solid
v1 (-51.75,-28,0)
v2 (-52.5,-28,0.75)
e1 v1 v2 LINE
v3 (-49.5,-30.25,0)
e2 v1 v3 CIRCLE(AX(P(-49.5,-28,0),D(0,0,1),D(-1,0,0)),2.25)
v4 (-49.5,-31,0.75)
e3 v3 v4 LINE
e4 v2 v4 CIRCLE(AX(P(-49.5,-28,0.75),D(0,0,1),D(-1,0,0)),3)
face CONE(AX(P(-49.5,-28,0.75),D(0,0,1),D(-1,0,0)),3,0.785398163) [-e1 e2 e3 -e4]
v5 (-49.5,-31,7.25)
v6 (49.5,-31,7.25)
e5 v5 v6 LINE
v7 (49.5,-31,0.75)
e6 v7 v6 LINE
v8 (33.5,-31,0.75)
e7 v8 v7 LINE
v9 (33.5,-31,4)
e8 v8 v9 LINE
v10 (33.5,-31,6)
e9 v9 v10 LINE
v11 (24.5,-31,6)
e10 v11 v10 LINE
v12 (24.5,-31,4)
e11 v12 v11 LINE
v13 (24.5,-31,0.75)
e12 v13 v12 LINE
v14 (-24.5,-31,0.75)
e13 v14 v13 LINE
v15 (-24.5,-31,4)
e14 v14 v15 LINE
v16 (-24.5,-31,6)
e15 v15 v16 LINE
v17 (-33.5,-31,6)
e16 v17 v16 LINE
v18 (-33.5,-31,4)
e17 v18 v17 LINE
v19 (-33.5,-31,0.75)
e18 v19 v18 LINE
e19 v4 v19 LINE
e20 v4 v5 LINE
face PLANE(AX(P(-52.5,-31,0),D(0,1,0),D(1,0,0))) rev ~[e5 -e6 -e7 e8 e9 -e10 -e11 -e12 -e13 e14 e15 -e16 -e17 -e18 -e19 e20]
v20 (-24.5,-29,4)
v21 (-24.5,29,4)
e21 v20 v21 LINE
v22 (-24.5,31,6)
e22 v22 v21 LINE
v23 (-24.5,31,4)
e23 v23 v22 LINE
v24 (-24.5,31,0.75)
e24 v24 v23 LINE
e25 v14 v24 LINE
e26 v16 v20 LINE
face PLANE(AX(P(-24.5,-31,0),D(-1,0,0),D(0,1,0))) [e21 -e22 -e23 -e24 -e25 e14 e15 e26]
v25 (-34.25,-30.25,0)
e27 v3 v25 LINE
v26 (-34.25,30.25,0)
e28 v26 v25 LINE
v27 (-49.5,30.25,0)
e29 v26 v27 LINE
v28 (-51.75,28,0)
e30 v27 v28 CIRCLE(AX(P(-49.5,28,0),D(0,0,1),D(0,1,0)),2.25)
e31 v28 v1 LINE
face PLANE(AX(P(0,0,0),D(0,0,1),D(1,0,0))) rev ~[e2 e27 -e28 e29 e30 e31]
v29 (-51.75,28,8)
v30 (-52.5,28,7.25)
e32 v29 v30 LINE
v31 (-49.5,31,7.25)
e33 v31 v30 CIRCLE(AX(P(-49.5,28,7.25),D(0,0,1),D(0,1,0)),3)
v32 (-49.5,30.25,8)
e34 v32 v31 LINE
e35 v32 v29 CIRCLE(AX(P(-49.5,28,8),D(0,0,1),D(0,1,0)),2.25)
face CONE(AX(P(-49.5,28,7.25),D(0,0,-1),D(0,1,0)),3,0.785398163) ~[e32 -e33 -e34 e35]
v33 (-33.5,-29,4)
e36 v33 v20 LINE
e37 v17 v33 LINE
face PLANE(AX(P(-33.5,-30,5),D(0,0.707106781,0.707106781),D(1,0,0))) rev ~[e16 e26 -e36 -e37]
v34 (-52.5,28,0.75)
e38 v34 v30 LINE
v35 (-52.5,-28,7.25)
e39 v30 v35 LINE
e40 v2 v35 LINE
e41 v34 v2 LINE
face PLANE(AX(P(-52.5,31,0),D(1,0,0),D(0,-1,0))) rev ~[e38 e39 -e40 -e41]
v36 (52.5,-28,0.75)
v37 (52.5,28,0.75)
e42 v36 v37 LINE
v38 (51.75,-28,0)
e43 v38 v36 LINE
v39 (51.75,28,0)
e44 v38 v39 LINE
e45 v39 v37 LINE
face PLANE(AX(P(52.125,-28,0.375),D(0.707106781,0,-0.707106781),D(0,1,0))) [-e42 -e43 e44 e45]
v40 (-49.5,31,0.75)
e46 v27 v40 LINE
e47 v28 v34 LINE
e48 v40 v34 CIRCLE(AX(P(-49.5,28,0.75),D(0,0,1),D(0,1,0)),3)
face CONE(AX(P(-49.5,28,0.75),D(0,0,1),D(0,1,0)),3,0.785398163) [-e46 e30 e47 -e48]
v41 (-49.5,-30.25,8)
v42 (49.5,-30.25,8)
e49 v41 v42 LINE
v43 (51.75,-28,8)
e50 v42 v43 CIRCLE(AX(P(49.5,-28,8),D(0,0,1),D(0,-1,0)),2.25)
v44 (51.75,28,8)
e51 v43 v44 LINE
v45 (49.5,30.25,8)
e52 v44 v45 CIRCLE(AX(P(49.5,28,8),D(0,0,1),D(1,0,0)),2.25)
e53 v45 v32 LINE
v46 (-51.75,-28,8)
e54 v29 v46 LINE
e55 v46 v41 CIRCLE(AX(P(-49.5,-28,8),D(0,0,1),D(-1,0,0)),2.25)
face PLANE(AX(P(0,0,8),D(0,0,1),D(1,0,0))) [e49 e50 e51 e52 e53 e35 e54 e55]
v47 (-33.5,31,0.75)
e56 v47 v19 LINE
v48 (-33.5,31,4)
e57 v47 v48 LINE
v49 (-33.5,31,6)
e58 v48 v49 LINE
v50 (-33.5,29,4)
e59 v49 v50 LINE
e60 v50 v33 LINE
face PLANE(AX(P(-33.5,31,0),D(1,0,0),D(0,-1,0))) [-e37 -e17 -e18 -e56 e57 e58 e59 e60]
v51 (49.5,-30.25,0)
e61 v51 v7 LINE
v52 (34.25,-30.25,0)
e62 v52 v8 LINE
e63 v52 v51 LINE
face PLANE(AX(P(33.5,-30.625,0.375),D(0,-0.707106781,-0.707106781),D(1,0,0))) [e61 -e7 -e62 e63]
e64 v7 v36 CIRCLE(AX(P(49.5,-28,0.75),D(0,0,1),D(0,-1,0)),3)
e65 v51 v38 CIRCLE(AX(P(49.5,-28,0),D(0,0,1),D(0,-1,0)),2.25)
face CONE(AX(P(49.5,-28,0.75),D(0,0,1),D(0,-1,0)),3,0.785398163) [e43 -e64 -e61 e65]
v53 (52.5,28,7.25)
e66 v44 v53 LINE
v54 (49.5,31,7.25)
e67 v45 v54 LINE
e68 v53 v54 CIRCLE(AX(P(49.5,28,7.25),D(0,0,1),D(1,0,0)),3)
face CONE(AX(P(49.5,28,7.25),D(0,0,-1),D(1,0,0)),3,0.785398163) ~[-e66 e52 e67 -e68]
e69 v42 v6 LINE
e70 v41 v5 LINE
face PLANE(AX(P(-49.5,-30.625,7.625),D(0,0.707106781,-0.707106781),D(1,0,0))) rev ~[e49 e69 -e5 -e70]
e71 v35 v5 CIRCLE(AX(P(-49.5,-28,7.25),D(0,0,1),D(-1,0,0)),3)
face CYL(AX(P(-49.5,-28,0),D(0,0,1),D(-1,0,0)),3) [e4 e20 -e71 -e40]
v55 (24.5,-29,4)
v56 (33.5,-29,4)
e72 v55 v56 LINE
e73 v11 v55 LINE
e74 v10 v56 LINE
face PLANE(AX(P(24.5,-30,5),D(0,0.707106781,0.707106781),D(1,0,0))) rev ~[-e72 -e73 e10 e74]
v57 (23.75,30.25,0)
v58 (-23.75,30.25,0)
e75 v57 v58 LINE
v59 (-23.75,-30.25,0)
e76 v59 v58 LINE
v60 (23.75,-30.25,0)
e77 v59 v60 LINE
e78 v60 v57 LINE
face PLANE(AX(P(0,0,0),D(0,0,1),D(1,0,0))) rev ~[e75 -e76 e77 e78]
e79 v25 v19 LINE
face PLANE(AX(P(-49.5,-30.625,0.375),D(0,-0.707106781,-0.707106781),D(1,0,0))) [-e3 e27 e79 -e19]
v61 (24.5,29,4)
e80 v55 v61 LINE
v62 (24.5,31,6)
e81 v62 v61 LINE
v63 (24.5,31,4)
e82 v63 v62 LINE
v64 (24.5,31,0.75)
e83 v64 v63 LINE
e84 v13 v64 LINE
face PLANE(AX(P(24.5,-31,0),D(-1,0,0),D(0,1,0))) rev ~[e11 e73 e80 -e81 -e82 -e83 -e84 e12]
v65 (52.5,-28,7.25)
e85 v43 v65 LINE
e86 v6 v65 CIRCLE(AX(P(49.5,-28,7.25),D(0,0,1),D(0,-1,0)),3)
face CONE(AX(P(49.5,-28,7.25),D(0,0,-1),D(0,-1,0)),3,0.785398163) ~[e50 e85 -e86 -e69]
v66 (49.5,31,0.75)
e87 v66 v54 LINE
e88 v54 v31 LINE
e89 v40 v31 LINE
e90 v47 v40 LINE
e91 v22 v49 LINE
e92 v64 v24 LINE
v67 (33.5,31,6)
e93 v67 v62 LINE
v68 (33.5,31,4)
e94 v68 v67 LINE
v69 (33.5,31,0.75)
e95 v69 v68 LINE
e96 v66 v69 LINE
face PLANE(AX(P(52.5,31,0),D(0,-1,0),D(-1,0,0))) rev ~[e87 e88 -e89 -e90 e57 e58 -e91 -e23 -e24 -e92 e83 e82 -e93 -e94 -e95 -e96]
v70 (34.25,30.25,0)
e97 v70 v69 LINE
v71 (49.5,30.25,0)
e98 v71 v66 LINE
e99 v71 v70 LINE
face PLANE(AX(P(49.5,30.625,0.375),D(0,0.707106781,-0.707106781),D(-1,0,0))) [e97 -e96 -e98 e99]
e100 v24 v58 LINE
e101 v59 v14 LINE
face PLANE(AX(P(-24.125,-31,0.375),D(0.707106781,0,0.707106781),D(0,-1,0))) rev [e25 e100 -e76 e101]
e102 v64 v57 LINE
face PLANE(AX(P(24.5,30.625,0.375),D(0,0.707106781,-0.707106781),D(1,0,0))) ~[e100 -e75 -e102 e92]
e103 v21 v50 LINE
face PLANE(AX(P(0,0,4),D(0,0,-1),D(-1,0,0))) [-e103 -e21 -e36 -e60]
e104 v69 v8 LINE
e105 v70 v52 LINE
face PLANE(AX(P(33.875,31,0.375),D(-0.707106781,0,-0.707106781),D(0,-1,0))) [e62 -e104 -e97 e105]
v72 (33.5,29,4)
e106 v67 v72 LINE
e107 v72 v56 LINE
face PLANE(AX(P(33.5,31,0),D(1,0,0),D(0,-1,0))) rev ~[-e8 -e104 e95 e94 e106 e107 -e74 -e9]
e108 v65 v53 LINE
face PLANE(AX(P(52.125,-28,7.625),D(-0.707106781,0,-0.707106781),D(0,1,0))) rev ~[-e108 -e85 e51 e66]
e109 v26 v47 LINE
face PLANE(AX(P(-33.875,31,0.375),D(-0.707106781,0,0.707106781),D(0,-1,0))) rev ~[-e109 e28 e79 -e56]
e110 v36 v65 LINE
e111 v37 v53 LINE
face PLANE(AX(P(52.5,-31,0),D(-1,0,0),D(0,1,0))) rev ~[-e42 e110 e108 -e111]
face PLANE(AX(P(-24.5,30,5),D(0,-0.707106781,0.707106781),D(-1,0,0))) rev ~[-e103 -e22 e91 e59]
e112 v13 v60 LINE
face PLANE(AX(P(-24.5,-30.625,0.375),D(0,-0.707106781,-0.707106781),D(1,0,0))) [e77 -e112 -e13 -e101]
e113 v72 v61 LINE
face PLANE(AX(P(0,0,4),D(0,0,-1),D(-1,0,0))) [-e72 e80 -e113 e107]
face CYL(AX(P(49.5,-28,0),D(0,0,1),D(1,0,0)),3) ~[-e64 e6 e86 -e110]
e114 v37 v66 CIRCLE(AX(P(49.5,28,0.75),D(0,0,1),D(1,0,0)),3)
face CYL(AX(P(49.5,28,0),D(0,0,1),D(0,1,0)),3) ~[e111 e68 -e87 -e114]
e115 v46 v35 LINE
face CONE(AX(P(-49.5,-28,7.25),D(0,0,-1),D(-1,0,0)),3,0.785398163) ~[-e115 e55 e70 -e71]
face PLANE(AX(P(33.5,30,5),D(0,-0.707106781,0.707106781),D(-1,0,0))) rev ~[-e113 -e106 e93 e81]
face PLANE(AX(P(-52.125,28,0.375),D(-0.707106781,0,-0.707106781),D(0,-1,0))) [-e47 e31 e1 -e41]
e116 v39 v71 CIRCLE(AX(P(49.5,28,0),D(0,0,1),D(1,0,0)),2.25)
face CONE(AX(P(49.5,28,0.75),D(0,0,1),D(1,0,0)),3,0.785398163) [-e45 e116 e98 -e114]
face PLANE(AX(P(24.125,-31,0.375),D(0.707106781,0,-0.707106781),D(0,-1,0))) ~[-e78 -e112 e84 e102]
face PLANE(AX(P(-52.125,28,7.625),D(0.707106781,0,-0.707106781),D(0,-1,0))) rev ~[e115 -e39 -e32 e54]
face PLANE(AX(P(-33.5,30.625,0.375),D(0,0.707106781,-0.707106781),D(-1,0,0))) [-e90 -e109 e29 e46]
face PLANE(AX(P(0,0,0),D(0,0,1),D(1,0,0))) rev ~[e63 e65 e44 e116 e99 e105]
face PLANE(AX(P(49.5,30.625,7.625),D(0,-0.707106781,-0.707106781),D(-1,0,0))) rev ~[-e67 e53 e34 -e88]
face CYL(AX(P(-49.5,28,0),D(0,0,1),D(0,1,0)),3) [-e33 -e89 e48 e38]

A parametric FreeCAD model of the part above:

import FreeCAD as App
import Part
import Sketcher
Q = App.Units.Quantity


def edges_at(feature, points):
    """Names of the edges that pass closest to the given points."""
    edges = feature.Shape.Edges
    near = lambda p: min(range(len(edges)), key=lambda i: edges[i].distToShape(Part.Vertex(*p))[0])
    return sorted({f"Edge{near(p) + 1}" for p in points})


def add_polygon(sketch, points):
    """Adds a closed chain of lines whose ends are joined by coincident constraints."""
    first, n = sketch.GeometryCount, len(points)
    for a, b in zip(points, points[1:] + points[:1]):
        sketch.addGeometry(Part.LineSegment(App.Vector(*a, 0), App.Vector(*b, 0)), False)
    for i in range(n):
        sketch.addConstraint(Sketcher.Constraint("Coincident", first + i, 2, first + (i + 1) % n, 1))

doc = App.newDocument("Part")
body = doc.addObject("PartDesign::Body", "Body")

# Sketch on XY plane
sketch1 = body.newObject("Sketcher::SketchObject", "Sketch")
sketch1.AttachmentSupport = (doc.getObject("XY_Plane"), [""])
sketch1.MapMode = "FlatFace"
add_polygon(sketch1, [(-52, 31), (-52, -31), (52, -31), (52, 31)])  # lines 0-3
sketch1.addConstraint([
    Sketcher.Constraint("Vertical", 0),
    Sketcher.Constraint("Horizontal", 1),
    Sketcher.Constraint("Vertical", 2),
    Sketcher.Constraint("Horizontal", 3),
    Sketcher.Constraint("Symmetric", 0, 2, 2, 2, -1, 1),
    Sketcher.Constraint("DistanceX", 1, 1, 1, 2, Q("105 mm")),
    Sketcher.Constraint("DistanceY", 0, 2, 0, 1, Q("62 mm")),
])
pad1 = body.newObject("PartDesign::Pad", "Pad")
pad1.Profile = sketch1
pad1.Length = 8

# Sketch on XY plane
sketch2 = body.newObject("Sketcher::SketchObject", "Sketch001")
sketch2.AttachmentSupport = (doc.getObject("XY_Plane"), [""])
sketch2.MapMode = "FlatFace"
add_polygon(sketch2, [(34, 31), (34, -31), (24, -31), (24, 31)])  # lines 0-3
add_polygon(sketch2, [(-24, 31), (-24, -31), (-34, -31), (-34, 31)])  # lines 4-7
sketch2.addConstraint([
    Sketcher.Constraint("Vertical", 0),
    Sketcher.Constraint("Horizontal", 1),
    Sketcher.Constraint("Vertical", 2),
    Sketcher.Constraint("Horizontal", 3),
    Sketcher.Constraint("Vertical", 4),
    Sketcher.Constraint("Horizontal", 5),
    Sketcher.Constraint("Vertical", 6),
    Sketcher.Constraint("Horizontal", 7),
    Sketcher.Constraint("Symmetric", 2, 2, 4, 2, -1, 1),
    Sketcher.Constraint("Symmetric", 0, 2, 6, 2, -1, 1),
    Sketcher.Constraint("Horizontal", 1, 2, 4, 2),
    Sketcher.Constraint("DistanceX", 1, 2, 1, 1, Q("9 mm")),
    Sketcher.Constraint("DistanceY", 0, 2, 0, 1, Q("62 mm")),
    Sketcher.Constraint("DistanceX", 4, 2, 1, 2, Q("49 mm")),
])
pocket1 = body.newObject("PartDesign::Pocket", "Pocket")
pocket1.Profile = sketch2
pocket1.Length = 4
pocket1.Reversed = True
doc.recompute()

chamfer = body.newObject("PartDesign::Chamfer", "Chamfer")
chamfer.Base = (pocket1, edges_at(pocket1, [
    (-29, -31, 4),
    (29, -31, 4),
    (29, 31, 4),
    (-29, 31, 4),
]))
chamfer.Size = 2
doc.recompute()

fillet = body.newObject("PartDesign::Fillet", "Fillet")
fillet.Base = (chamfer, edges_at(chamfer, [
    (-52.5, -31, 4),
    (-52.5, 31, 4),
    (52.5, -31, 4),
    (52.5, 31, 4),
]))
fillet.Radius = 3
doc.recompute()

chamfer2 = body.newObject("PartDesign::Chamfer", "Chamfer001")
chamfer2.Base = (fillet, edges_at(fillet, [
    (0, -31, 8),
    (-52.5, 0, 8),
    (0, 31, 8),
    (52.5, 0, 8),
]))
chamfer2.Size = 0.75
doc.recompute()

chamfer3 = body.newObject("PartDesign::Chamfer", "Chamfer002")
chamfer3.Base = (chamfer2, edges_at(chamfer2, [
    (-52.5, 0, 0),
    (-51.621, -30.121, 0),
    (-41.5, -31, 0),
    (-51.621, 30.121, 0),
    (-41.5, 31, 0),
    (52.5, 0, 0),
    (51.621, 30.121, 0),
    (41.5, 31, 0),
    (51.621, -30.121, 0),
    (41.5, -31, 0),
    (0, 31, 0),
    (24.5, 0, 0),
    (0, -31, 0),
    (-24.5, 0, 0),
    (-33.5, 0, 0),
    (33.5, 0, 0),
]))
chamfer3.Size = 0.75

doc.recompute()
